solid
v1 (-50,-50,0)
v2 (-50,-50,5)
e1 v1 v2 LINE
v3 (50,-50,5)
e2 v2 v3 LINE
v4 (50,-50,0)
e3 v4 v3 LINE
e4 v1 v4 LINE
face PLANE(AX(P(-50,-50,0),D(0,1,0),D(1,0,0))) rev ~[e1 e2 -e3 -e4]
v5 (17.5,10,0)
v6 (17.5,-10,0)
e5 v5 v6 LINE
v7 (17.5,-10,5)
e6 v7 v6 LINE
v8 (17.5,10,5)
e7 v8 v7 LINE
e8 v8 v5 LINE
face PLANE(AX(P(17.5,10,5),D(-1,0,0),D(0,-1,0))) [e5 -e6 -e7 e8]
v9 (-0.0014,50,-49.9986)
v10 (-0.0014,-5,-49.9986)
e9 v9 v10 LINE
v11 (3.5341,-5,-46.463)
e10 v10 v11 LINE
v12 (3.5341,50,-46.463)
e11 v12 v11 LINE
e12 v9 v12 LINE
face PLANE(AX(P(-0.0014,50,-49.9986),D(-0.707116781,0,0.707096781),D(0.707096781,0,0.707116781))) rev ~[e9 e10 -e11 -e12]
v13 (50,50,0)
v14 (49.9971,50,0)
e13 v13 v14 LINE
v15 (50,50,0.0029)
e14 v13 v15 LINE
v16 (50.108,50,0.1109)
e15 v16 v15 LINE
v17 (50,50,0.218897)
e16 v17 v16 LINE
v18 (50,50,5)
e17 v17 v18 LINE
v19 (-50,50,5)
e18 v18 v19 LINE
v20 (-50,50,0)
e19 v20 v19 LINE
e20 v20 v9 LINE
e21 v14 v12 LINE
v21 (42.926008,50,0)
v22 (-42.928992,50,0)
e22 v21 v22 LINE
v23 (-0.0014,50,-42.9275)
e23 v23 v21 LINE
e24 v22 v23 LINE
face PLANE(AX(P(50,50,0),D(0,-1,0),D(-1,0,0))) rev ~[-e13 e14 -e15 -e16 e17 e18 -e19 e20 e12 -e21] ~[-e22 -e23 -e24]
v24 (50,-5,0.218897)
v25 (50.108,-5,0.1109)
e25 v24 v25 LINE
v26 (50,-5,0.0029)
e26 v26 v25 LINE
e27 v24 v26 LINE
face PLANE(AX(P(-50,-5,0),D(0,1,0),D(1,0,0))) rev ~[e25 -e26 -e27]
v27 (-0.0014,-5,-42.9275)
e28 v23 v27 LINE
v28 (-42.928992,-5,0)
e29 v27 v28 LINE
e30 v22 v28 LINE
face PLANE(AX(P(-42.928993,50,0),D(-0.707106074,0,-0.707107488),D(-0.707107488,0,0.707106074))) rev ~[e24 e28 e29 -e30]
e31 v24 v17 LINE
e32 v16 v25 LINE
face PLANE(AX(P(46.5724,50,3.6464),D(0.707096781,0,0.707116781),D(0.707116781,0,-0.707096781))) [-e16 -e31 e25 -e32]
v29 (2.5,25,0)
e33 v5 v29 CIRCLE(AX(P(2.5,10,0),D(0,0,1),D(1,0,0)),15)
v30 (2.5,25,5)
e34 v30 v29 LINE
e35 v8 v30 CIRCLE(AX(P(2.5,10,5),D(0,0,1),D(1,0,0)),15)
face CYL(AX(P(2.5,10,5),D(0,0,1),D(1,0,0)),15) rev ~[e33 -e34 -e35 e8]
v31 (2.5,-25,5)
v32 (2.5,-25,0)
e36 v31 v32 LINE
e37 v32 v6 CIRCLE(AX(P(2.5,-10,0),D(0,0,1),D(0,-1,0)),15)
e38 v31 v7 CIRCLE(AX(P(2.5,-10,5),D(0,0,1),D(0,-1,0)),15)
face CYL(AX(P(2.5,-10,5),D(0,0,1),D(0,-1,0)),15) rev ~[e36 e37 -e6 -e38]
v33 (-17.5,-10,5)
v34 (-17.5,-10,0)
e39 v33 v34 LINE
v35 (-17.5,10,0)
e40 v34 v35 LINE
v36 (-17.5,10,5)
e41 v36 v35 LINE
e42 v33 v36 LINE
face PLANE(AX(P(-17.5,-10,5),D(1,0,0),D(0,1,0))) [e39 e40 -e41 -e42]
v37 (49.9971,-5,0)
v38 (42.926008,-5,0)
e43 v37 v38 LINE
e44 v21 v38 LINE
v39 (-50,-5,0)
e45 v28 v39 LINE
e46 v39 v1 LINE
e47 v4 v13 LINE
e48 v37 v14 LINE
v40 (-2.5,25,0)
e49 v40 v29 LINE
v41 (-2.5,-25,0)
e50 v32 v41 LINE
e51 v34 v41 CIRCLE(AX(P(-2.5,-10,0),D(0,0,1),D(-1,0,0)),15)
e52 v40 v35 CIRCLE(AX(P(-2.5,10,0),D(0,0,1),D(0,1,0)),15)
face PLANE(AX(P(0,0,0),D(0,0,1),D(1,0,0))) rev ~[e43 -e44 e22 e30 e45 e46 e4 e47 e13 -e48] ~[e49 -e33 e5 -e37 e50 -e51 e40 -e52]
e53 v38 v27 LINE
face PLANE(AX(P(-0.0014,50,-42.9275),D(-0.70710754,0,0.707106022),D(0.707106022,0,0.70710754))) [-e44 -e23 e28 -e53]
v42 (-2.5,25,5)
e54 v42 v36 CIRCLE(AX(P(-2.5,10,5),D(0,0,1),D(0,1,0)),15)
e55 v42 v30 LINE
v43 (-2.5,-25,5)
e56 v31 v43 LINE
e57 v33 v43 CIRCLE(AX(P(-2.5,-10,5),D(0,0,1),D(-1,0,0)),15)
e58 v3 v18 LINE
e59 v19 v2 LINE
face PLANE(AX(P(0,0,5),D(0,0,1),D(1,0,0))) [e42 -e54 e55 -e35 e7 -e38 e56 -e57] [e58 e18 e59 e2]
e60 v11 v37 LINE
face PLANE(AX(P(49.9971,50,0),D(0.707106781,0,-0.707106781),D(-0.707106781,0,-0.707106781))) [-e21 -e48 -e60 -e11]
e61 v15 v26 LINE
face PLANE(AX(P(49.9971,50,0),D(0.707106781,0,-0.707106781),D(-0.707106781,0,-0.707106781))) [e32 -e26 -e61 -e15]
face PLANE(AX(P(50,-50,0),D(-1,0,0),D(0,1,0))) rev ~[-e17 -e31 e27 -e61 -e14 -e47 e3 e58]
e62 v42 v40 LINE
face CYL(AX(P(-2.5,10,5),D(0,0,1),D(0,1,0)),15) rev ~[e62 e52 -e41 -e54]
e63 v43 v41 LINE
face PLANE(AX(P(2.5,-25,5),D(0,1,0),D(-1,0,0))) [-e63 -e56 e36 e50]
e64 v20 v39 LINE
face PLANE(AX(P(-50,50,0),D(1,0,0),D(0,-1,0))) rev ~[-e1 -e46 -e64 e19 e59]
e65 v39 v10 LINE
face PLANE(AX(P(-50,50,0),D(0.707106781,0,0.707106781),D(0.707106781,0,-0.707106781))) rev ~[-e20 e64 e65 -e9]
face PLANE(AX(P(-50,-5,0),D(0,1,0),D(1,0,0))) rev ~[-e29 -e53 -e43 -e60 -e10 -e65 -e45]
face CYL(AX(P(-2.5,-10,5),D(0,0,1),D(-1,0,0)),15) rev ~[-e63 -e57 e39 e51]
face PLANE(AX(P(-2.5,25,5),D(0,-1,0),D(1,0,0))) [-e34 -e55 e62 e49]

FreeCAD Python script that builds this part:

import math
import FreeCAD as App
import Part
import Sketcher
from FreeCAD import Vector
Q = App.Units.Quantity


def add_polygon(sketch, points):
    """Adds a closed chain of lines whose ends are joined by coincident constraints."""
    first, n = sketch.GeometryCount, len(points)
    for a, b in zip(points, points[1:] + points[:1]):
        sketch.addGeometry(Part.LineSegment(App.Vector(*a, 0), App.Vector(*b, 0)), False)
    for i in range(n):
        sketch.addConstraint(Sketcher.Constraint("Coincident", first + i, 2, first + (i + 1) % n, 1))

doc = App.newDocument("Part")
body = doc.addObject("PartDesign::Body", "Body")

# Sketch on XY plane
sketch1 = body.newObject("Sketcher::SketchObject", "Sketch")
sketch1.AttachmentSupport = (doc.getObject("XY_Plane"), [""])
sketch1.MapMode = "FlatFace"
add_polygon(sketch1, [(-50, 50), (-50, -50), (50, -50), (50, 50)])  # lines 0-3
sketch1.addConstraint([
    Sketcher.Constraint("Vertical", 0),
    Sketcher.Constraint("Horizontal", 1),
    Sketcher.Constraint("Vertical", 2),
    Sketcher.Constraint("Horizontal", 3),
    Sketcher.Constraint("Symmetric", 0, 2, 2, 2, -1, 1),
    Sketcher.Constraint("Equal", 3, 0),
    Sketcher.Constraint("DistanceX", 1, 1, 1, 2, Q("100 mm")),
])
pad1 = body.newObject("PartDesign::Pad", "Pad")
pad1.Profile = sketch1
pad1.Length = 5

# Sketch on XZ plane
sketch2 = body.newObject("Sketcher::SketchObject", "Sketch001")
sketch2.AttachmentSupport = (doc.getObject("XZ_Plane"), [""])
sketch2.MapMode = "FlatFace"
sketch2.AttachmentOffset = App.Placement(Vector(0, 0, -50), App.Rotation())
add_polygon(sketch2, [(0, -50), (-50, 0), (-46.5, 3.5), (0, -42.9), (46.6, 3.6), (50.1, 0.1), (3.5, -46.5)])  # lines 0-6
sketch2.addConstraint([
    Sketcher.Constraint("PointOnObject", 0, 2, -1),
    Sketcher.Constraint("Perpendicular", 0, 1),
    Sketcher.Constraint("Perpendicular", 1, 2),
    Sketcher.Constraint("Perpendicular", 2, 3),
    Sketcher.Constraint("Perpendicular", 3, 4),
    Sketcher.Constraint("Perpendicular", 4, 5),
    Sketcher.Constraint("Parallel", 5, 6),
    Sketcher.Constraint("Vertical", 2, 2, 6, 2),
    Sketcher.Constraint("Equal", 1, 4),
    Sketcher.Constraint("Equal", 3, 5),
    Sketcher.Constraint("Distance", 1, Q("5 mm")),
    Sketcher.Constraint("DistanceX", 0, 2, -1, 1, Q("50 mm")),
    Sketcher.Constraint("DistanceX", -1, 1, 4, 2, Q("50.108 mm")),
    Sketcher.Constraint("DistanceY", -1, 1, 4, 2, Q("0.111 mm")),
])
pad2 = body.newObject("PartDesign::Pad", "Pad001")
pad2.Profile = sketch2
pad2.Length = 55

# Sketch on XY plane
sketch3 = body.newObject("Sketcher::SketchObject", "Sketch002")
sketch3.AttachmentSupport = (doc.getObject("XY_Plane"), [""])
sketch3.MapMode = "FlatFace"
sketch3.AttachmentOffset = App.Placement(Vector(0, 0, 5), App.Rotation())
sketch3.addGeometry([
    Part.LineSegment(Vector(-2, -25, 0), Vector(2, -25, 0)),  # 0
    Part.ArcOfCircle(Part.Circle(Vector(2, -10, 0), Vector(0, 0, 1), 15), math.radians(-90), math.radians(0)),  # 1
    Part.LineSegment(Vector(18, -10, 0), Vector(18, 10, 0)),  # 2
    Part.ArcOfCircle(Part.Circle(Vector(2, 10, 0), Vector(0, 0, 1), 15), math.radians(0), math.radians(90)),  # 3
    Part.LineSegment(Vector(2, 25, 0), Vector(-2, 25, 0)),  # 4
    Part.ArcOfCircle(Part.Circle(Vector(-2, 10, 0), Vector(0, 0, 1), 15), math.radians(90), math.radians(180)),  # 5
    Part.LineSegment(Vector(-18, 10, 0), Vector(-18, -10, 0)),  # 6
    Part.ArcOfCircle(Part.Circle(Vector(-2, -10, 0), Vector(0, 0, 1), 15), math.radians(180), math.radians(270)),  # 7
], False)
sketch3.addConstraint([
    Sketcher.Constraint("Tangent", 0, 2, 1, 1),
    Sketcher.Constraint("Tangent", 1, 2, 2, 1),
    Sketcher.Constraint("Tangent", 2, 2, 3, 1),
    Sketcher.Constraint("Tangent", 3, 2, 4, 1),
    Sketcher.Constraint("Tangent", 4, 2, 5, 1),
    Sketcher.Constraint("Tangent", 5, 2, 6, 1),
    Sketcher.Constraint("Tangent", 6, 2, 7, 1),
    Sketcher.Constraint("Tangent", 7, 2, 0, 1),
    Sketcher.Constraint("Horizontal", 0),
    Sketcher.Constraint("Vertical", 2),
    Sketcher.Constraint("Horizontal", 4),
    Sketcher.Constraint("Vertical", 6),
    Sketcher.Constraint("Equal", 1, 3),
    Sketcher.Constraint("Equal", 3, 5),
    Sketcher.Constraint("Equal", 5, 7),
    Sketcher.Constraint("Symmetric", 1, 3, 5, 3, -1, 1),
    Sketcher.Constraint("Radius", 1, Q("15 mm")),
    Sketcher.Constraint("DistanceY", 0, 2, 3, 3, Q("35 mm")),
    Sketcher.Constraint("DistanceX", 0, 1, 0, 2, Q("5 mm")),
])
pocket1 = body.newObject("PartDesign::Pocket", "Pocket")
pocket1.Profile = sketch3
pocket1.Length = 5

doc.recompute()
